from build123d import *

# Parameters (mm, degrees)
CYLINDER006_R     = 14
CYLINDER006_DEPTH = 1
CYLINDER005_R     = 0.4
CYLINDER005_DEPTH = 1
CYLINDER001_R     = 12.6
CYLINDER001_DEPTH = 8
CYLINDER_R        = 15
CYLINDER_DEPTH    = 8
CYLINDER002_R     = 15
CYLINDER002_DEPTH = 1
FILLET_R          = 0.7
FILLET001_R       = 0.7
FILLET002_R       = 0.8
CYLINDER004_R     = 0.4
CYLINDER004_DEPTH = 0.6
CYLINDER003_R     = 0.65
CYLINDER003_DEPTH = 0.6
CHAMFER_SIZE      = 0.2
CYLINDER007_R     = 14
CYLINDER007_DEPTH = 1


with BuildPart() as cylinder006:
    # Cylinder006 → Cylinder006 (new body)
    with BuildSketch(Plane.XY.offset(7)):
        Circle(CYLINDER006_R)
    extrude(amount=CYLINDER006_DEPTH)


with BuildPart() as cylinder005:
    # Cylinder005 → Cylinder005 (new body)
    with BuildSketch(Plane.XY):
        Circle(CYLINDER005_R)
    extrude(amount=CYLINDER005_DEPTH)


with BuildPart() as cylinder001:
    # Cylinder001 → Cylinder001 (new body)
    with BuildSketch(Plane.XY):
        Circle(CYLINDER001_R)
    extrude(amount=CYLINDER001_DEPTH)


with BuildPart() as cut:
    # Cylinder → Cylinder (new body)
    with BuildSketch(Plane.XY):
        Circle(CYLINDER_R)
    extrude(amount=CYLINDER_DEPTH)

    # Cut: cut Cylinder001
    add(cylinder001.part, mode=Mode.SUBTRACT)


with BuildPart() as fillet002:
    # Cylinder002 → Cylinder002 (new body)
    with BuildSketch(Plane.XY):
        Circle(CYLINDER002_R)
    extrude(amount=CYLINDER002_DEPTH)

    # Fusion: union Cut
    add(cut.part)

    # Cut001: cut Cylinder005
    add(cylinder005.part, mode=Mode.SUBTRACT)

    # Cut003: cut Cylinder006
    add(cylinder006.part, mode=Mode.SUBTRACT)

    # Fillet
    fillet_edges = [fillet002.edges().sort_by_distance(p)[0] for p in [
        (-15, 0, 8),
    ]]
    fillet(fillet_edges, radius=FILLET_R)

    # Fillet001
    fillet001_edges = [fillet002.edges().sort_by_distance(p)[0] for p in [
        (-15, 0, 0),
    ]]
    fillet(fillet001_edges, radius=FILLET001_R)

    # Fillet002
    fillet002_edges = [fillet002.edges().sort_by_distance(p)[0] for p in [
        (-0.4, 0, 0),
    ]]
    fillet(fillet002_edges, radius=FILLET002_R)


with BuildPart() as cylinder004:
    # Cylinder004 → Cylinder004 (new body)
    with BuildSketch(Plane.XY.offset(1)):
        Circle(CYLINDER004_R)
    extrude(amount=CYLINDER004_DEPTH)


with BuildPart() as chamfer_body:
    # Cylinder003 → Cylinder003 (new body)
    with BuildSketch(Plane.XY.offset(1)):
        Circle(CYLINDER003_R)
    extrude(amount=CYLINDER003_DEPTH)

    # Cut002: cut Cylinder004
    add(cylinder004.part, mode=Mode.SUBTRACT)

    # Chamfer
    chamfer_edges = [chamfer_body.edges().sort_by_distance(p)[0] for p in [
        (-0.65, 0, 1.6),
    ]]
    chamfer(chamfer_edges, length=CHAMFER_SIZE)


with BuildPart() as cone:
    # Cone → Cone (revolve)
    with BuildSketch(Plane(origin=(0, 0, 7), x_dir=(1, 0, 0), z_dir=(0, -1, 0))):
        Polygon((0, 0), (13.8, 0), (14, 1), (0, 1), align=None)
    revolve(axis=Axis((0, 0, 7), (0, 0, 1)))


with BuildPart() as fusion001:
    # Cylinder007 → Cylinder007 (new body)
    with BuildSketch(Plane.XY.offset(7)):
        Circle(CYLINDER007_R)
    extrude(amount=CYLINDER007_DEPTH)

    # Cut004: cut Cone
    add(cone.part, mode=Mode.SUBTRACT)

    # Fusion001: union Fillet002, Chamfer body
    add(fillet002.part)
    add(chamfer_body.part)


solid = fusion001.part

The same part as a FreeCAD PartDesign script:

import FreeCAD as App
import Part
import Sketcher

V = App.Vector
Q = App.Units.Quantity


def edges_at(feature, points):
    """Names of the edges that pass closest to the given points."""
    edges = feature.Shape.Edges
    near = lambda p: min(range(len(edges)), key=lambda i: edges[i].distToShape(Part.Vertex(*p))[0])
    return sorted({f"Edge{near(p) + 1}" for p in points})


def add_polygon(sketch, points):
    """Adds a closed chain of lines whose ends are joined by coincident constraints."""
    first, n = sketch.GeometryCount, len(points)
    for a, b in zip(points, points[1:] + points[:1]):
        sketch.addGeometry(Part.LineSegment(App.Vector(*a, 0), App.Vector(*b, 0)), False)
    for i in range(n):
        sketch.addConstraint(Sketcher.Constraint("Coincident", first + i, 2, first + (i + 1) % n, 1))

doc = App.newDocument("Part")
body = doc.addObject("PartDesign::Body", "Body")

sketch1 = doc.addObject("Sketcher::SketchObject", "Sketch")
body.addObject(sketch1)
sketch1.AttachmentSupport = (doc.XY_Plane, [""])
sketch1.MapMode = "FlatFace"
sketch1.AttachmentOffset = App.Placement(V(0, 0, 7), App.Rotation())
sketch1.addGeometry(Part.Circle(V(0, 0, 0), V(0, 0, 1), 14), False)
sketch1.addConstraint([
    Sketcher.Constraint("Coincident", 0, 3, -1, 1),
    Sketcher.Constraint("Diameter", 0, Q("28 mm")),
])
pad1 = doc.addObject("PartDesign::Pad", "Pad")
body.addObject(pad1)
pad1.Profile = sketch1
pad1.Length = 1
body2 = doc.addObject("PartDesign::Body", "Body001")

sketch2 = doc.addObject("Sketcher::SketchObject", "Sketch001")
body2.addObject(sketch2)
sketch2.AttachmentSupport = (doc.getObject("XY_Plane001"), [""])
sketch2.MapMode = "FlatFace"
sketch2.addGeometry(Part.Circle(V(0, 0, 0), V(0, 0, 1), 0.4), False)
sketch2.addConstraint([
    Sketcher.Constraint("Coincident", 0, 3, -1, 1),
    Sketcher.Constraint("Diameter", 0, Q("0.8 mm")),
])
pad2 = doc.addObject("PartDesign::Pad", "Pad001")
body2.addObject(pad2)
pad2.Profile = sketch2
pad2.Length = 1
body3 = doc.addObject("PartDesign::Body", "Body002")

sketch3 = doc.addObject("Sketcher::SketchObject", "Sketch002")
body3.addObject(sketch3)
sketch3.AttachmentSupport = (doc.getObject("XY_Plane002"), [""])
sketch3.MapMode = "FlatFace"
sketch3.addGeometry(Part.Circle(V(0, 0, 0), V(0, 0, 1), 13), False)
sketch3.addConstraint([
    Sketcher.Constraint("Coincident", 0, 3, -1, 1),
    Sketcher.Constraint("Diameter", 0, Q("25.2 mm")),
])
pad3 = doc.addObject("PartDesign::Pad", "Pad002")
body3.addObject(pad3)
pad3.Profile = sketch3
pad3.Length = 8
body4 = doc.addObject("PartDesign::Body", "Body003")

sketch4 = doc.addObject("Sketcher::SketchObject", "Sketch003")
body4.addObject(sketch4)
sketch4.AttachmentSupport = (doc.getObject("XY_Plane003"), [""])
sketch4.MapMode = "FlatFace"
sketch4.addGeometry(Part.Circle(V(0, 0, 0), V(0, 0, 1), 15), False)
sketch4.addConstraint([
    Sketcher.Constraint("Coincident", 0, 3, -1, 1),
    Sketcher.Constraint("Diameter", 0, Q("30 mm")),
])
pad4 = doc.addObject("PartDesign::Pad", "Pad003")
body4.addObject(pad4)
pad4.Profile = sketch4
pad4.Length = 8
doc.recompute()

boolean = doc.addObject("PartDesign::Boolean", "Boolean")
body4.addObject(boolean)
boolean.Type = "Cut"
boolean.addObjects([body3])
body5 = doc.addObject("PartDesign::Body", "Body004")

sketch5 = doc.addObject("Sketcher::SketchObject", "Sketch004")
body5.addObject(sketch5)
sketch5.AttachmentSupport = (doc.getObject("XY_Plane004"), [""])
sketch5.MapMode = "FlatFace"
sketch5.addGeometry(Part.Circle(V(0, 0, 0), V(0, 0, 1), 15), False)
sketch5.addConstraint([
    Sketcher.Constraint("Coincident", 0, 3, -1, 1),
    Sketcher.Constraint("Diameter", 0, Q("30 mm")),
])
pad5 = doc.addObject("PartDesign::Pad", "Pad004")
body5.addObject(pad5)
pad5.Profile = sketch5
pad5.Length = 1
doc.recompute()

boolean2 = doc.addObject("PartDesign::Boolean", "Boolean001")
body5.addObject(boolean2)
boolean2.Type = "Fuse"
boolean2.addObjects([body4])
doc.recompute()

boolean3 = doc.addObject("PartDesign::Boolean", "Boolean002")
body5.addObject(boolean3)
boolean3.Type = "Cut"
boolean3.addObjects([body2])
doc.recompute()

boolean4 = doc.addObject("PartDesign::Boolean", "Boolean003")
body5.addObject(boolean4)
boolean4.Type = "Cut"
boolean4.addObjects([body])
doc.recompute()

fillet = doc.addObject("PartDesign::Fillet", "Fillet")
body5.addObject(fillet)
fillet.Base = (boolean4, edges_at(boolean4, [(-15, 0, 8)]))
fillet.Radius = 0.7
doc.recompute()

fillet2 = doc.addObject("PartDesign::Fillet", "Fillet001")
body5.addObject(fillet2)
fillet2.Base = (fillet, edges_at(fillet, [(-15, 0, 0)]))
fillet2.Radius = 0.7
doc.recompute()

fillet3 = doc.addObject("PartDesign::Fillet", "Fillet002")
body5.addObject(fillet3)
fillet3.Base = (fillet2, edges_at(fillet2, [(-0.4, 0, 0)]))
fillet3.Radius = 0.8
body6 = doc.addObject("PartDesign::Body", "Body005")

sketch6 = doc.addObject("Sketcher::SketchObject", "Sketch005")
body6.addObject(sketch6)
sketch6.AttachmentSupport = (doc.getObject("XY_Plane005"), [""])
sketch6.MapMode = "FlatFace"
sketch6.AttachmentOffset = App.Placement(V(0, 0, 1), App.Rotation())
sketch6.addGeometry(Part.Circle(V(0, 0, 0), V(0, 0, 1), 0.4), False)
sketch6.addConstraint([
    Sketcher.Constraint("Coincident", 0, 3, -1, 1),
    Sketcher.Constraint("Diameter", 0, Q("0.8 mm")),
])
pad6 = doc.addObject("PartDesign::Pad", "Pad005")
body6.addObject(pad6)
pad6.Profile = sketch6
pad6.Length = 0.6
body7 = doc.addObject("PartDesign::Body", "Body006")

sketch7 = doc.addObject("Sketcher::SketchObject", "Sketch006")
body7.addObject(sketch7)
sketch7.AttachmentSupport = (doc.getObject("XY_Plane006"), [""])
sketch7.MapMode = "FlatFace"
sketch7.AttachmentOffset = App.Placement(V(0, 0, 1), App.Rotation())
sketch7.addGeometry(Part.Circle(V(0, 0, 0), V(0, 0, 1), 0.7), False)
sketch7.addConstraint([
    Sketcher.Constraint("Coincident", 0, 3, -1, 1),
    Sketcher.Constraint("Diameter", 0, Q("1.3 mm")),
])
pad7 = doc.addObject("PartDesign::Pad", "Pad006")
body7.addObject(pad7)
pad7.Profile = sketch7
pad7.Length = 0.6
doc.recompute()

boolean5 = doc.addObject("PartDesign::Boolean", "Boolean004")
body7.addObject(boolean5)
boolean5.Type = "Cut"
boolean5.addObjects([body6])
doc.recompute()

chamfer = doc.addObject("PartDesign::Chamfer", "Chamfer")
body7.addObject(chamfer)
chamfer.Base = (boolean5, edges_at(boolean5, [(-0.65, 0, 1.6)]))
chamfer.Size = 0.2
body8 = doc.addObject("PartDesign::Body", "Body007")

sketch8 = doc.addObject("Sketcher::SketchObject", "Sketch007")
body8.addObject(sketch8)
sketch8.AttachmentSupport = (doc.getObject("XZ_Plane007"), [""])
sketch8.MapMode = "FlatFace"
add_polygon(sketch8, [(0, 7), (13.8, 7), (14, 8), (0, 8)])
sketch8.addConstraint([
    Sketcher.Constraint("Horizontal", 0),
    Sketcher.Constraint("Horizontal", 2),
    Sketcher.Constraint("Vertical", 3),
    Sketcher.Constraint("PointOnObject", 2, 2, -2),
    Sketcher.Constraint("DistanceX", 2, 2, 2, 1, Q("14 mm")),
    Sketcher.Constraint("DistanceY", 3, 2, 3, 1, Q("1 mm")),
    Sketcher.Constraint("DistanceX", 0, 1, 0, 2, Q("13.8 mm")),
    Sketcher.Constraint("DistanceY", -1, 1, 0, 2, Q("7 mm")),
])
revolution = doc.addObject("PartDesign::Revolution", "Revolution")
body8.addObject(revolution)
revolution.Profile = sketch8
revolution.ReferenceAxis = (sketch8, ["V_Axis"])
revolution.Angle = 360
body9 = doc.addObject("PartDesign::Body", "Body008")

sketch9 = doc.addObject("Sketcher::SketchObject", "Sketch008")
body9.addObject(sketch9)
sketch9.AttachmentSupport = (doc.getObject("XY_Plane008"), [""])
sketch9.MapMode = "FlatFace"
sketch9.AttachmentOffset = App.Placement(V(0, 0, 7), App.Rotation())
sketch9.addGeometry(Part.Circle(V(0, 0, 0), V(0, 0, 1), 14), False)
sketch9.addConstraint([
    Sketcher.Constraint("Coincident", 0, 3, -1, 1),
    Sketcher.Constraint("Diameter", 0, Q("28 mm")),
])
pad8 = doc.addObject("PartDesign::Pad", "Pad007")
body9.addObject(pad8)
pad8.Profile = sketch9
pad8.Length = 1
doc.recompute()

boolean6 = doc.addObject("PartDesign::Boolean", "Boolean005")
body9.addObject(boolean6)
boolean6.Type = "Cut"
boolean6.addObjects([body8])
doc.recompute()

boolean7 = doc.addObject("PartDesign::Boolean", "Boolean006")
body9.addObject(boolean7)
boolean7.Type = "Fuse"
boolean7.addObjects([body5])
doc.recompute()

boolean8 = doc.addObject("PartDesign::Boolean", "Boolean007")
body9.addObject(boolean8)
boolean8.Type = "Fuse"
boolean8.addObjects([body7])

doc.recompute()
